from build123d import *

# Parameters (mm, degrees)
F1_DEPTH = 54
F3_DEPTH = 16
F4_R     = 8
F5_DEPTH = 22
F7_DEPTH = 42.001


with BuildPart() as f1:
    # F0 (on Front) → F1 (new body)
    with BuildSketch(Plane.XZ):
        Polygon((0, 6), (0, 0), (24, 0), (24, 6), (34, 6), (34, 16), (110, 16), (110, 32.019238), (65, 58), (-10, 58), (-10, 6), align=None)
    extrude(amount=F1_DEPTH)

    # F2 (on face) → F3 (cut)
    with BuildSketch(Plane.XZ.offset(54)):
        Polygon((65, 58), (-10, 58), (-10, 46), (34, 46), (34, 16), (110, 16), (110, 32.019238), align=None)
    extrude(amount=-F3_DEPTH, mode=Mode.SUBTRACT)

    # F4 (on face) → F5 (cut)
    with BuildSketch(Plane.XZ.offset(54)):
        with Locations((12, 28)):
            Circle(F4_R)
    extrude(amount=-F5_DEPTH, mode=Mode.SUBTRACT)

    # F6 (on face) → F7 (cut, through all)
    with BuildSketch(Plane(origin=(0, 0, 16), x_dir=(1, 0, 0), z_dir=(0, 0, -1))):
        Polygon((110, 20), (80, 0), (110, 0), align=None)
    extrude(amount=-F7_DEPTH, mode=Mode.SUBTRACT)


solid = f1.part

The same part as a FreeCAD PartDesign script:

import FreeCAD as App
import Part
import Sketcher

V = App.Vector
Q = App.Units.Quantity

doc = App.newDocument("Part")
body = doc.addObject("PartDesign::Body", "Body")

# Sketch on XZ plane
sketch1 = body.newObject("Sketcher::SketchObject", "Sketch")
sketch1.AttachmentSupport = (doc.getObject("XZ_Plane"), [""])
sketch1.MapMode = "FlatFace"
sketch1.addGeometry(Part.LineSegment(V(0, 6, 0), V(0, 0, 0)), False)
sketch1.addGeometry(Part.LineSegment(V(0, 0, 0), V(24, 0, 0)), False)
sketch1.addGeometry(Part.LineSegment(V(24, 0, 0), V(24, 6, 0)), False)
sketch1.addGeometry(Part.LineSegment(V(24, 6, 0), V(34, 6, 0)), False)
sketch1.addGeometry(Part.LineSegment(V(34, 6, 0), V(34, 16, 0)), False)
sketch1.addGeometry(Part.LineSegment(V(34, 16, 0), V(110, 16, 0)), False)
sketch1.addGeometry(Part.LineSegment(V(110, 16, 0), V(110, 32.019238, 0)), False)
sketch1.addGeometry(Part.LineSegment(V(110, 32.019238, 0), V(65, 58, 0)), False)
sketch1.addGeometry(Part.LineSegment(V(65, 58, 0), V(-10, 58, 0)), False)
sketch1.addGeometry(Part.LineSegment(V(-10, 58, 0), V(-10, 6, 0)), False)
sketch1.addGeometry(Part.LineSegment(V(-10, 6, 0), V(0, 6, 0)), False)
sketch1.addConstraint(Sketcher.Constraint("Coincident", 0, 2, 1, 1))
sketch1.addConstraint(Sketcher.Constraint("Coincident", 1, 2, 2, 1))
sketch1.addConstraint(Sketcher.Constraint("Coincident", 2, 2, 3, 1))
sketch1.addConstraint(Sketcher.Constraint("Coincident", 3, 2, 4, 1))
sketch1.addConstraint(Sketcher.Constraint("Coincident", 4, 2, 5, 1))
sketch1.addConstraint(Sketcher.Constraint("Coincident", 5, 2, 6, 1))
sketch1.addConstraint(Sketcher.Constraint("Coincident", 6, 2, 7, 1))
sketch1.addConstraint(Sketcher.Constraint("Coincident", 7, 2, 8, 1))
sketch1.addConstraint(Sketcher.Constraint("Coincident", 8, 2, 9, 1))
sketch1.addConstraint(Sketcher.Constraint("Coincident", 9, 2, 10, 1))
sketch1.addConstraint(Sketcher.Constraint("Coincident", 10, 2, 0, 1))
sketch1.addConstraint(Sketcher.Constraint("Vertical", 0))
sketch1.addConstraint(Sketcher.Constraint("Horizontal", 1))
sketch1.addConstraint(Sketcher.Constraint("Vertical", 2))
sketch1.addConstraint(Sketcher.Constraint("Horizontal", 3))
sketch1.addConstraint(Sketcher.Constraint("Vertical", 4))
sketch1.addConstraint(Sketcher.Constraint("Horizontal", 5))
sketch1.addConstraint(Sketcher.Constraint("Vertical", 6))
sketch1.addConstraint(Sketcher.Constraint("Horizontal", 8))
sketch1.addConstraint(Sketcher.Constraint("Vertical", 9))
sketch1.addConstraint(Sketcher.Constraint("Horizontal", 10))
sketch1.addConstraint(Sketcher.Constraint("Coincident", 0, 2, -1, 1))
sketch1.addConstraint(Sketcher.Constraint("Horizontal", 3, 2, 9, 2))
sketch1.addConstraint(Sketcher.Constraint("Equal", 3, 10))
sketch1.addConstraint(Sketcher.Constraint("Equal", 10, 4))
sketch1.addConstraint(Sketcher.Constraint("DistanceX", 1, 1, 1, 2, 24.0))
sketch1.addConstraint(Sketcher.Constraint("DistanceX", 3, 1, 3, 2, 10.0))
sketch1.addConstraint(Sketcher.Constraint("DistanceX", 5, 1, 5, 2, 76.0))
sketch1.addConstraint(Sketcher.Constraint("DistanceX", 8, 2, 8, 1, 75.0))
sketch1.addConstraint(Sketcher.Constraint("DistanceY", 0, 2, 0, 1, 6.0))
sketch1.addConstraint(Sketcher.Constraint("DistanceY", 9, 2, 9, 1, 52.0))
sketch1.addConstraint(Sketcher.Constraint("Angle", 7, Q("150 deg")))
pad1 = body.newObject("PartDesign::Pad", "Pad")
pad1.Profile = sketch1
pad1.Length = 54

# Sketch on XZ plane
sketch2 = body.newObject("Sketcher::SketchObject", "Sketch001")
sketch2.AttachmentSupport = (doc.getObject("XZ_Plane"), [""])
sketch2.MapMode = "FlatFace"
sketch2.AttachmentOffset = App.Placement(V(0, 0, 54), App.Rotation())
sketch2.addGeometry(Part.LineSegment(V(65, 58, 0), V(-10, 58, 0)), False)
sketch2.addGeometry(Part.LineSegment(V(-10, 58, 0), V(-10, 46, 0)), False)
sketch2.addGeometry(Part.LineSegment(V(-10, 46, 0), V(34, 46, 0)), False)
sketch2.addGeometry(Part.LineSegment(V(34, 46, 0), V(34, 16, 0)), False)
sketch2.addGeometry(Part.LineSegment(V(34, 16, 0), V(110, 16, 0)), False)
sketch2.addGeometry(Part.LineSegment(V(110, 16, 0), V(110, 32.019238, 0)), False)
sketch2.addGeometry(Part.LineSegment(V(110, 32.019238, 0), V(65, 58, 0)), False)
sketch2.addConstraint(Sketcher.Constraint("Coincident", 0, 2, 1, 1))
sketch2.addConstraint(Sketcher.Constraint("Coincident", 1, 2, 2, 1))
sketch2.addConstraint(Sketcher.Constraint("Coincident", 2, 2, 3, 1))
sketch2.addConstraint(Sketcher.Constraint("Coincident", 3, 2, 4, 1))
sketch2.addConstraint(Sketcher.Constraint("Coincident", 4, 2, 5, 1))
sketch2.addConstraint(Sketcher.Constraint("Coincident", 5, 2, 6, 1))
sketch2.addConstraint(Sketcher.Constraint("Coincident", 6, 2, 0, 1))
sketch2.addConstraint(Sketcher.Constraint("Horizontal", 0))
sketch2.addConstraint(Sketcher.Constraint("Vertical", 1))
sketch2.addConstraint(Sketcher.Constraint("Horizontal", 2))
sketch2.addConstraint(Sketcher.Constraint("Vertical", 3))
sketch2.addConstraint(Sketcher.Constraint("Horizontal", 4))
sketch2.addConstraint(Sketcher.Constraint("Vertical", 5))
sketch2.addConstraint(Sketcher.Constraint("DistanceX", 0, 2, 0, 1, 75.0))
sketch2.addConstraint(Sketcher.Constraint("DistanceX", 2, 1, 2, 2, 44.0))
sketch2.addConstraint(Sketcher.Constraint("DistanceX", 4, 1, 4, 2, 76.0))
sketch2.addConstraint(Sketcher.Constraint("DistanceY", 1, 2, 1, 1, 12.0))
sketch2.addConstraint(Sketcher.Constraint("DistanceY", 3, 2, 3, 1, 30.0))
sketch2.addConstraint(Sketcher.Constraint("Angle", 6, Q("150 deg")))
sketch2.addConstraint(Sketcher.Constraint("DistanceX", 0, 2, -1, 1, 10.0))
sketch2.addConstraint(Sketcher.Constraint("DistanceY", -1, 1, 0, 2, 58.0))
pocket1 = body.newObject("PartDesign::Pocket", "Pocket")
pocket1.Profile = sketch2
pocket1.Length = 16

# Sketch on XZ plane
sketch3 = body.newObject("Sketcher::SketchObject", "Sketch002")
sketch3.AttachmentSupport = (doc.getObject("XZ_Plane"), [""])
sketch3.MapMode = "FlatFace"
sketch3.AttachmentOffset = App.Placement(V(0, 0, 54), App.Rotation())
sketch3.addGeometry(Part.Circle(V(12, 28, 0), V(0, 0, 1), 8), False)
sketch3.addConstraint(Sketcher.Constraint("Diameter", 0, 16.0))
sketch3.addConstraint(Sketcher.Constraint("DistanceX", -1, 1, 0, 3, 12.0))
sketch3.addConstraint(Sketcher.Constraint("DistanceY", -1, 1, 0, 3, 28.0))
pocket2 = body.newObject("PartDesign::Pocket", "Pocket001")
pocket2.Profile = sketch3
pocket2.Length = 22

# Sketch on XY plane
sketch4 = body.newObject("Sketcher::SketchObject", "Sketch003")
sketch4.AttachmentSupport = (doc.getObject("XY_Plane"), [""])
sketch4.MapMode = "FlatFace"
sketch4.AttachmentOffset = App.Placement(V(0, 0, 16), App.Rotation())
sketch4.addGeometry(Part.LineSegment(V(110, -20, 0), V(80, 0, 0)), False)
sketch4.addGeometry(Part.LineSegment(V(80, 0, 0), V(110, 0, 0)), False)
sketch4.addGeometry(Part.LineSegment(V(110, 0, 0), V(110, -20, 0)), False)
sketch4.addConstraint(Sketcher.Constraint("Coincident", 0, 2, 1, 1))
sketch4.addConstraint(Sketcher.Constraint("Coincident", 1, 2, 2, 1))
sketch4.addConstraint(Sketcher.Constraint("Coincident", 2, 2, 0, 1))
sketch4.addConstraint(Sketcher.Constraint("Horizontal", 1))
sketch4.addConstraint(Sketcher.Constraint("Vertical", 2))
sketch4.addConstraint(Sketcher.Constraint("PointOnObject", 0, 2, -1))
sketch4.addConstraint(Sketcher.Constraint("DistanceX", 1, 1, 1, 2, 30.0))
sketch4.addConstraint(Sketcher.Constraint("DistanceY", 2, 2, 2, 1, 20.0))
sketch4.addConstraint(Sketcher.Constraint("DistanceX", -1, 1, 0, 2, 80.0))
pocket3 = body.newObject("PartDesign::Pocket", "Pocket002")
pocket3.Profile = sketch4
pocket3.Type = "ThroughAll"
pocket3.Reversed = True

doc.recompute()
